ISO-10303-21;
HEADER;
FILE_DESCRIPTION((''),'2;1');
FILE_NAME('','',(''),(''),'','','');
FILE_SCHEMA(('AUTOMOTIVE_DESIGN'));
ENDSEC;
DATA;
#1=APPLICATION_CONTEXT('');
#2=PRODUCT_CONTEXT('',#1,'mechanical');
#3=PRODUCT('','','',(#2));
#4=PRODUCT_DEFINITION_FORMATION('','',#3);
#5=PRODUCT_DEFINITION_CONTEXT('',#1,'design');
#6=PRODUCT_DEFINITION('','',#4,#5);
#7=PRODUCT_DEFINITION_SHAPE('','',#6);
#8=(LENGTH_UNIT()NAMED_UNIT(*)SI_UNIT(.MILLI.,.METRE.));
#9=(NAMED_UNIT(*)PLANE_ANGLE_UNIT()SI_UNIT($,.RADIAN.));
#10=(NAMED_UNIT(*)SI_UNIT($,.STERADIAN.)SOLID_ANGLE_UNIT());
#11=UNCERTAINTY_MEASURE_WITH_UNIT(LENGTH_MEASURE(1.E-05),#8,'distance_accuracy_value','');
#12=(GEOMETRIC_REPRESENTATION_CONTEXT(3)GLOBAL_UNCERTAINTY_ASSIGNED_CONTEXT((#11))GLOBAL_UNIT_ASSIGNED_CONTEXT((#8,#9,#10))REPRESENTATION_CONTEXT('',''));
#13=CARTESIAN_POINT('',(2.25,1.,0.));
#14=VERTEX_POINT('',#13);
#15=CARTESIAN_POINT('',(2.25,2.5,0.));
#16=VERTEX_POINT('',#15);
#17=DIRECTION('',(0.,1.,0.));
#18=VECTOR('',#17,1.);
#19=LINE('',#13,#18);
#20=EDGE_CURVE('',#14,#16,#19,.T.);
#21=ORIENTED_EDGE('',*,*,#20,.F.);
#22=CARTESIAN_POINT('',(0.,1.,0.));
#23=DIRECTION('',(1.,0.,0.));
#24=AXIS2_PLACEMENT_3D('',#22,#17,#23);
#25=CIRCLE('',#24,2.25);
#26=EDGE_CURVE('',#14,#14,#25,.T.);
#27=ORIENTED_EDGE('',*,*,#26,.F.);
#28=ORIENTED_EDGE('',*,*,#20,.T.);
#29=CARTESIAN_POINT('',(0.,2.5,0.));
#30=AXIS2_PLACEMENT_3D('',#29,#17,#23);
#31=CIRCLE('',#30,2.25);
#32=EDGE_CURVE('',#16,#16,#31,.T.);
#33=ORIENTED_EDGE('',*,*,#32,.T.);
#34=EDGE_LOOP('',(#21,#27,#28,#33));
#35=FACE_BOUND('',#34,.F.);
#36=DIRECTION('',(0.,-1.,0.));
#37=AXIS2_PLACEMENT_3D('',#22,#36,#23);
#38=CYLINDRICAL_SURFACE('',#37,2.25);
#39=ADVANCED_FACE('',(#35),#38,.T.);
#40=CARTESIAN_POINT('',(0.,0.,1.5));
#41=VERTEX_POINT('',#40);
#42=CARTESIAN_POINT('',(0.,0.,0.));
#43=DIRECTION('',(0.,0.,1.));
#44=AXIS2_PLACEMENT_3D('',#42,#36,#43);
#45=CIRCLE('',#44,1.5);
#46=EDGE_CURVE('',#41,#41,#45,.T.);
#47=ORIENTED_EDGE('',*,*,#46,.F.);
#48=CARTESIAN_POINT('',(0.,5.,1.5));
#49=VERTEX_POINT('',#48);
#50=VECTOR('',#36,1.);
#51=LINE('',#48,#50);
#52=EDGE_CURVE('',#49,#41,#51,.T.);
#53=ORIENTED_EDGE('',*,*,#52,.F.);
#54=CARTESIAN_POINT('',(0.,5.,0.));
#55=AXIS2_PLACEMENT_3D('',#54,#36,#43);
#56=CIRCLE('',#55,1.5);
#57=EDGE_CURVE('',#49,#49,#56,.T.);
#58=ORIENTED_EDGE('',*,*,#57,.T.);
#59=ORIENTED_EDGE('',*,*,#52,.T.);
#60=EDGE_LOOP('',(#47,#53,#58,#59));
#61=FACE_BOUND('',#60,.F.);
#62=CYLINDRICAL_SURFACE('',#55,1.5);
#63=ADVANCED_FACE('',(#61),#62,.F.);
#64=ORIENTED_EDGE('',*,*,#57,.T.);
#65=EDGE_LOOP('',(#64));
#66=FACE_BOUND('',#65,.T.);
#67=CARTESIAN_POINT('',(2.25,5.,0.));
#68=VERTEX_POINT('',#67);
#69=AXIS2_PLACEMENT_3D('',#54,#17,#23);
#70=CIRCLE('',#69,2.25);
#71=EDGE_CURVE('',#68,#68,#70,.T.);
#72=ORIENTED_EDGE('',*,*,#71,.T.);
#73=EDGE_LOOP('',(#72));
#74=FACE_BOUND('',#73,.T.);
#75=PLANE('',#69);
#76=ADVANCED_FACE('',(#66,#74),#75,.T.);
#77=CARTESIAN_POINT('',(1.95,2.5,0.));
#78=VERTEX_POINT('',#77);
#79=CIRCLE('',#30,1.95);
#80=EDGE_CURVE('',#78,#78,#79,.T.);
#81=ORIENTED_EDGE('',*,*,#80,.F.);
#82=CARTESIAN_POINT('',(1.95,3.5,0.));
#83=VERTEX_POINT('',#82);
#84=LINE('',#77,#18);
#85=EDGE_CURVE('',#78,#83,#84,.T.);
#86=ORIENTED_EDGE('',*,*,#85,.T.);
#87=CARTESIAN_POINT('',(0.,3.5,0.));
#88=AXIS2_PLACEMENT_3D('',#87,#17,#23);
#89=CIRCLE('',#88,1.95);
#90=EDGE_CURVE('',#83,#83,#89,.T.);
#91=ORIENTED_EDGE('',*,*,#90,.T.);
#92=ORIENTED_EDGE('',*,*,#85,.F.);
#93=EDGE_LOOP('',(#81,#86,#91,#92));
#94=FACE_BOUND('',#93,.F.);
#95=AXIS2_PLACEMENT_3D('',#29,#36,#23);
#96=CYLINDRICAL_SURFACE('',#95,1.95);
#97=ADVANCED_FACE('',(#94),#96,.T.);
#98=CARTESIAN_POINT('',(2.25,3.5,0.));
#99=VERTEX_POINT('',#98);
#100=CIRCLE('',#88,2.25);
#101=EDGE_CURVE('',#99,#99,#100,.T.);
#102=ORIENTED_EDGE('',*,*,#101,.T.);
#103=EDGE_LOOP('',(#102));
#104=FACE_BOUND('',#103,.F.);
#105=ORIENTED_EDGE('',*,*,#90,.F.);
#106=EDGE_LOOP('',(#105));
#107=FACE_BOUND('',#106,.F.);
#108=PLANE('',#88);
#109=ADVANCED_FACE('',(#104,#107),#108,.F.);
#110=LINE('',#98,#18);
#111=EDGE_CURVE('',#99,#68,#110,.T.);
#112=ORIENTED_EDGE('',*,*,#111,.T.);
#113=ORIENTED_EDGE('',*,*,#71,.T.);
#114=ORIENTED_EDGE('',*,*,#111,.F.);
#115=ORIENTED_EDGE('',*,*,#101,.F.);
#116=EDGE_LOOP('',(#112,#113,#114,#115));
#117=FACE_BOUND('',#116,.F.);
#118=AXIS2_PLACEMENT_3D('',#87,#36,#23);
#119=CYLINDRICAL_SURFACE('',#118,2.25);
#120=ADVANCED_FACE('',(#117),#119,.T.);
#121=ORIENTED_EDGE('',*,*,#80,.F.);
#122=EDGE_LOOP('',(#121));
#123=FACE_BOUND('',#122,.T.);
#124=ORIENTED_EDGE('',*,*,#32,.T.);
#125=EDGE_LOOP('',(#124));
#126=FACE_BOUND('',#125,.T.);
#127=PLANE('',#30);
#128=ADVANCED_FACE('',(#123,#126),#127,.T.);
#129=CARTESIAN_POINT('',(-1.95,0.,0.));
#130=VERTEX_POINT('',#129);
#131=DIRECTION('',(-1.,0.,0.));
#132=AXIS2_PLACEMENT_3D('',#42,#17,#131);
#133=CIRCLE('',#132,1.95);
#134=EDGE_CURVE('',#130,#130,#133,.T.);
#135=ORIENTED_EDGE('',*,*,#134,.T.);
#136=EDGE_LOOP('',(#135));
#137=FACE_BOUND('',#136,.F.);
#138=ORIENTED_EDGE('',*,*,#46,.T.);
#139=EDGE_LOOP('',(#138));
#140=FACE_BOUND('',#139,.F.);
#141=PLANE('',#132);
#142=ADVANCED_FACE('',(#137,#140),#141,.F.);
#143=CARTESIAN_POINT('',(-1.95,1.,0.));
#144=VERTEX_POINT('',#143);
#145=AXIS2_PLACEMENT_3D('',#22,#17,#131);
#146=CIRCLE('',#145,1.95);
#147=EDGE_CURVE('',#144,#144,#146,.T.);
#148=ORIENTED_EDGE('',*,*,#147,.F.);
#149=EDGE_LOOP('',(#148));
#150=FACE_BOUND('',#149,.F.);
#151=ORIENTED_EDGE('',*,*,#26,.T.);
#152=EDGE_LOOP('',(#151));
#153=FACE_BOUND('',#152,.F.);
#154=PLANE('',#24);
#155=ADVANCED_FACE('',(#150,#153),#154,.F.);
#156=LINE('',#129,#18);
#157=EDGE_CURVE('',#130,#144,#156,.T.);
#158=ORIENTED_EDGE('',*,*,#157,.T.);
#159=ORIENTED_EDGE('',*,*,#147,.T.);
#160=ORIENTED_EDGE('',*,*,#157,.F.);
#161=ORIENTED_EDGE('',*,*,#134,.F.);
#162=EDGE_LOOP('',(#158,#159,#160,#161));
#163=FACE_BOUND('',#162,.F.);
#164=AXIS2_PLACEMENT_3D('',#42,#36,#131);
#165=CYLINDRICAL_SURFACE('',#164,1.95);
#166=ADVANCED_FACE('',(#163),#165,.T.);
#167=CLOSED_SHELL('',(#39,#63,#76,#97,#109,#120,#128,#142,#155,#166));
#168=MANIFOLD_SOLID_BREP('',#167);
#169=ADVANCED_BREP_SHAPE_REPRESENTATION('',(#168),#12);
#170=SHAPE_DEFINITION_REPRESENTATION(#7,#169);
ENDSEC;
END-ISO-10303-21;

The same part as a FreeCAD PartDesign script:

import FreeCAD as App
import Part
import Sketcher

V = App.Vector
Q = App.Units.Quantity

doc = App.newDocument("Part")
body = doc.addObject("PartDesign::Body", "Body")

sketch1 = doc.addObject("Sketcher::SketchObject", "Sketch")
body.addObject(sketch1)
sketch1.AttachmentSupport = (doc.XZ_Plane, [""])
sketch1.MapMode = "FlatFace"
sketch1.addGeometry(Part.Circle(V(0, 0, 0), V(0, 0, 1), 1.95), False)
sketch1.addConstraint([
    Sketcher.Constraint("Coincident", 0, 3, -1, 1),
    Sketcher.Constraint("Diameter", 0, Q("3.9 mm")),
])
pad1 = doc.addObject("PartDesign::Pad", "Pad")
body.addObject(pad1)
pad1.Profile = sketch1
pad1.Length = 1
pad1.Reversed = True

sketch2 = doc.addObject("Sketcher::SketchObject", "Sketch001")
body.addObject(sketch2)
sketch2.AttachmentSupport = (doc.XZ_Plane, [""])
sketch2.MapMode = "FlatFace"
sketch2.AttachmentOffset = App.Placement(V(0, 0, -1), App.Rotation())
sketch2.addGeometry(Part.Circle(V(0, 0, 0), V(0, 0, 1), 2.25), False)
sketch2.addConstraint([
    Sketcher.Constraint("Coincident", 0, 3, -1, 1),
    Sketcher.Constraint("Diameter", 0, Q("4.5 mm")),
])
pad2 = doc.addObject("PartDesign::Pad", "Pad001")
body.addObject(pad2)
pad2.Profile = sketch2
pad2.Length = 1.5
pad2.Reversed = True

sketch3 = doc.addObject("Sketcher::SketchObject", "Sketch002")
body.addObject(sketch3)
sketch3.AttachmentSupport = (doc.XZ_Plane, [""])
sketch3.MapMode = "FlatFace"
sketch3.AttachmentOffset = App.Placement(V(0, 0, -2.5), App.Rotation())
sketch3.addGeometry(Part.Circle(V(0, 0, 0), V(0, 0, 1), 1.95), False)
sketch3.addConstraint([
    Sketcher.Constraint("Coincident", 0, 3, -1, 1),
    Sketcher.Constraint("Diameter", 0, Q("3.9 mm")),
])
pad3 = doc.addObject("PartDesign::Pad", "Pad002")
body.addObject(pad3)
pad3.Profile = sketch3
pad3.Length = 1
pad3.Reversed = True

sketch4 = doc.addObject("Sketcher::SketchObject", "Sketch003")
body.addObject(sketch4)
sketch4.AttachmentSupport = (doc.XZ_Plane, [""])
sketch4.MapMode = "FlatFace"
sketch4.AttachmentOffset = App.Placement(V(0, 0, -3.5), App.Rotation())
sketch4.addGeometry(Part.Circle(V(0, 0, 0), V(0, 0, 1), 2.25), False)
sketch4.addConstraint([
    Sketcher.Constraint("Coincident", 0, 3, -1, 1),
    Sketcher.Constraint("Diameter", 0, Q("4.5 mm")),
])
pad4 = doc.addObject("PartDesign::Pad", "Pad003")
body.addObject(pad4)
pad4.Profile = sketch4
pad4.Length = 1.5
pad4.Reversed = True

sketch5 = doc.addObject("Sketcher::SketchObject", "Sketch004")
body.addObject(sketch5)
sketch5.AttachmentSupport = (doc.XZ_Plane, [""])
sketch5.MapMode = "FlatFace"
sketch5.AttachmentOffset = App.Placement(V(0, 0, -5), App.Rotation())
sketch5.addGeometry(Part.Circle(V(0, 0, 0), V(0, 0, 1), 1.5), False)
sketch5.addConstraint([
    Sketcher.Constraint("Coincident", 0, 3, -1, 1),
    Sketcher.Constraint("Diameter", 0, Q("3 mm")),
])
doc.recompute()
hole = doc.addObject("PartDesign::Hole", "Hole")
body.addObject(hole)
hole.Profile = sketch5
hole.ThreadType = "None"
hole.Diameter = 3
hole.DepthType = "Dimension"
hole.Depth = 6
hole.DrillPoint = "Flat"
hole.Reversed = True

doc.recompute()
